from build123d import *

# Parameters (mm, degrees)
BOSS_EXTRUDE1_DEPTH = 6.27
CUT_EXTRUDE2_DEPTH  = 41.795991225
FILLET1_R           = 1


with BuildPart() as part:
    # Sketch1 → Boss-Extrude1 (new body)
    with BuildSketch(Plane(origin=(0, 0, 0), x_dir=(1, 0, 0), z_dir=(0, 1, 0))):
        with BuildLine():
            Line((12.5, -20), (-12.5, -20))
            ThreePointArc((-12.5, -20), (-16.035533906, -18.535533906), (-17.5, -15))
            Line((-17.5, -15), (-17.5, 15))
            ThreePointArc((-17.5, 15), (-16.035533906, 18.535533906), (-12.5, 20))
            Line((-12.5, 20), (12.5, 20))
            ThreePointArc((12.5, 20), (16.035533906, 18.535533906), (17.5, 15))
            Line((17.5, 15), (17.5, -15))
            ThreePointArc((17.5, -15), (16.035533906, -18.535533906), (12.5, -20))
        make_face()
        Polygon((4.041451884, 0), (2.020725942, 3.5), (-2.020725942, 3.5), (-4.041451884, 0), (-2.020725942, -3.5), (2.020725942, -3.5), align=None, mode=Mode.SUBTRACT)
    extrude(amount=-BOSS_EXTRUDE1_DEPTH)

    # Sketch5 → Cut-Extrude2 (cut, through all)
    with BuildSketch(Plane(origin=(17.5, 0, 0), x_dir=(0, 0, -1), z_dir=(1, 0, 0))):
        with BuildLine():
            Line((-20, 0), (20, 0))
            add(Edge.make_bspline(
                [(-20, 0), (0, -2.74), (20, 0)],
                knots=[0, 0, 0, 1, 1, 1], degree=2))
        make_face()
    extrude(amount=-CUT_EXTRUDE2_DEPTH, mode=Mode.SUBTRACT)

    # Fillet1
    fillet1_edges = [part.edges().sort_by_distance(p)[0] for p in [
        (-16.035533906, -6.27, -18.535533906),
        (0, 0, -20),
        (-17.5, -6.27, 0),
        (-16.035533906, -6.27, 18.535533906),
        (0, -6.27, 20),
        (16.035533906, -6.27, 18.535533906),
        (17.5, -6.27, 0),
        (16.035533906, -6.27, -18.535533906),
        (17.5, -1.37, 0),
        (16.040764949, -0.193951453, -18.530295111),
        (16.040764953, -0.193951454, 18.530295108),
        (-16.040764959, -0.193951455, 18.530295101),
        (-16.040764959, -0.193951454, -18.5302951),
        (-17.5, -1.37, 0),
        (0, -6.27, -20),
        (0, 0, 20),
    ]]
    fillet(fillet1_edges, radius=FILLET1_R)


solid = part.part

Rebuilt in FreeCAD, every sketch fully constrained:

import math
import FreeCAD as App
import Part
import Sketcher

V = App.Vector
Q = App.Units.Quantity


def edges_at(feature, points):
    """Names of the edges that pass closest to the given points."""
    edges = feature.Shape.Edges
    near = lambda p: min(range(len(edges)), key=lambda i: edges[i].distToShape(Part.Vertex(*p))[0])
    return sorted({f"Edge{near(p) + 1}" for p in points})

doc = App.newDocument("Part")
params = doc.addObject("Spreadsheet::Sheet", "Params")
for row, (alias, value) in enumerate([
    ("sketch1_radius", "5 mm"),
    ("sketch1_width", "25 mm"),
    ("sketch1_height", "30 mm"),
    ("pad1_length", "6.27 mm"),
    ("fillet_radius", "1 mm"),
], start=1):
    params.set(f"A{row}", alias)
    params.set(f"B{row}", "=" + value)
    params.setAlias(f"B{row}", alias)

body = doc.addObject("PartDesign::Body", "Body")

sketch1 = body.newObject("Sketcher::SketchObject", "Sketch")
sketch1.AttachmentSupport = (doc.getObject("XZ_Plane"), [""])
sketch1.MapMode = "FlatFace"
sketch1.addGeometry([
    Part.LineSegment(V(-12.5, 20, 0), V(12.5, 20, 0)),
    Part.ArcOfCircle(Part.Circle(V(12.5, 15, 0), V(0, 0, 1), 5), math.radians(0), math.radians(90)),
    Part.LineSegment(V(17.5, 15, 0), V(17.5, -15, 0)),
    Part.ArcOfCircle(Part.Circle(V(12.5, -15, 0), V(0, 0, 1), 5), math.radians(-90), math.radians(0)),
    Part.LineSegment(V(12.5, -20, 0), V(-12.5, -20, 0)),
    Part.ArcOfCircle(Part.Circle(V(-12.5, -15, 0), V(0, 0, 1), 5), math.radians(180), math.radians(270)),
    Part.LineSegment(V(-17.5, -15, 0), V(-17.5, 15, 0)),
    Part.ArcOfCircle(Part.Circle(V(-12.5, 15, 0), V(0, 0, 1), 5), math.radians(90), math.radians(180)),
    Part.LineSegment(V(4.041452, 0, 0), V(2.020726, 3.5, 0)),
    Part.LineSegment(V(2.020726, 3.5, 0), V(-2.020726, 3.5, 0)),
    Part.LineSegment(V(-2.020726, 3.5, 0), V(-4.041452, 0, 0)),
    Part.LineSegment(V(-4.041452, 0, 0), V(-2.020726, -3.5, 0)),
    Part.LineSegment(V(-2.020726, -3.5, 0), V(2.020726, -3.5, 0)),
    Part.LineSegment(V(2.020726, -3.5, 0), V(4.041452, 0, 0)),
], False)
sketch1.addConstraint([
    Sketcher.Constraint("Tangent", 0, 2, 1, 2),
    Sketcher.Constraint("Tangent", 1, 1, 2, 1),
    Sketcher.Constraint("Tangent", 2, 2, 3, 2),
    Sketcher.Constraint("Tangent", 3, 1, 4, 1),
    Sketcher.Constraint("Tangent", 4, 2, 5, 2),
    Sketcher.Constraint("Tangent", 5, 1, 6, 1),
    Sketcher.Constraint("Tangent", 6, 2, 7, 2),
    Sketcher.Constraint("Tangent", 7, 1, 0, 1),
    Sketcher.Constraint("Coincident", 8, 2, 9, 1),
    Sketcher.Constraint("Coincident", 9, 2, 10, 1),
    Sketcher.Constraint("Coincident", 10, 2, 11, 1),
    Sketcher.Constraint("Coincident", 11, 2, 12, 1),
    Sketcher.Constraint("Coincident", 12, 2, 13, 1),
    Sketcher.Constraint("Coincident", 13, 2, 8, 1),
    Sketcher.Constraint("Horizontal", 0),
    Sketcher.Constraint("Vertical", 2),
    Sketcher.Constraint("Horizontal", 4),
    Sketcher.Constraint("Vertical", 6),
    Sketcher.Constraint("Horizontal", 9),
    Sketcher.Constraint("Horizontal", 12),
    Sketcher.Constraint("Equal", 1, 3),
    Sketcher.Constraint("Equal", 3, 5),
    Sketcher.Constraint("Equal", 5, 7),
    Sketcher.Constraint("Symmetric", 1, 3, 5, 3, -1, 1),
    Sketcher.Constraint("Symmetric", 8, 2, 11, 2, -1, 1),
    Sketcher.Constraint("Symmetric", 10, 2, 13, 2, -1, 1),
    Sketcher.Constraint("PointOnObject", 10, 2, -1),
    Sketcher.Constraint("Parallel", 10, 13),
    Sketcher.Constraint("Vertical", 9, 2, 11, 2),
    Sketcher.Constraint("Radius", 1, 5.0),
    Sketcher.Constraint("DistanceX", 0, 1, 0, 2, 25.0),
    Sketcher.Constraint("DistanceY", 2, 2, 2, 1, 30.0),
    Sketcher.Constraint("Angle", 8, Q("120 deg")),
    Sketcher.Constraint("DistanceY", 11, 2, 9, 2, 7.0),
    Sketcher.Constraint("DistanceX", 9, 2, 9, 1, 4.041452),
])
sketch1.setExpression("Constraints[29]", "Params.sketch1_radius")
sketch1.setExpression("Constraints[30]", "Params.sketch1_width")
sketch1.setExpression("Constraints[31]", "Params.sketch1_height")
pad1 = body.newObject("PartDesign::Pad", "Pad")
pad1.Profile = sketch1
pad1.setExpression("Length", "Params.pad1_length")

sketch2 = body.newObject("Sketcher::SketchObject", "Sketch001")
sketch2.AttachmentSupport = (doc.getObject("YZ_Plane"), [""])
sketch2.MapMode = "FlatFace"
sketch2.AttachmentOffset = App.Placement(V(0, 0, 17.5), App.Rotation())
sketch2.addGeometry([
    Part.LineSegment(V(0, -20, 0), V(0, 20, 0)),
    Part.BSplineCurve([V(0, 20, 0), V(-2.74, 0, 0), V(0, -20, 0)], [3, 3], [0, 1], False, 2, [1, 1, 1], False),
], False)
sketch2.addConstraint([
    Sketcher.Constraint("Block", 1),
    Sketcher.Constraint("Coincident", 0, 1, 1, 2),
    Sketcher.Constraint("Coincident", 1, 1, 0, 2),
])
pocket1 = body.newObject("PartDesign::Pocket", "Pocket")
pocket1.Profile = sketch2
pocket1.Type = "ThroughAll"
doc.recompute()

fillet = body.newObject("PartDesign::Fillet", "Fillet")
fillet.Base = (pocket1, edges_at(pocket1, [
    (-16.036, -6.27, -18.536),
    (0, 0, -20),
    (-17.5, -6.27, 0),
    (-16.036, -6.27, 18.536),
    (0, -6.27, 20),
    (16.036, -6.27, 18.536),
    (17.5, -6.27, 0),
    (16.036, -6.27, -18.536),
    (17.5, -1.37, 0),
    (16.041, -0.194, -18.53),
    (16.041, -0.194, 18.53),
    (-16.041, -0.194, 18.53),
    (-16.041, -0.194, -18.53),
    (-17.5, -1.37, 0),
    (0, -6.27, -20),
    (0, 0, 20),
]))
fillet.setExpression("Radius", "Params.fillet_radius")

doc.recompute()
